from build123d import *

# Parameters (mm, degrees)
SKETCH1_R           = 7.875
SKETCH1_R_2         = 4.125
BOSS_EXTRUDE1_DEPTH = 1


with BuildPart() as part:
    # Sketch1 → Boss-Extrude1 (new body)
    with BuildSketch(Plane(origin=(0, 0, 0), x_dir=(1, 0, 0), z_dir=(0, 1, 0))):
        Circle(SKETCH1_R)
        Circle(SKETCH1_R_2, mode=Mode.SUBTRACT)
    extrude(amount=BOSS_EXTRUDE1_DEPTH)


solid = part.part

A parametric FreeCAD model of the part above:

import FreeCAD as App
import Part
import Sketcher
from FreeCAD import Vector
Q = App.Units.Quantity

doc = App.newDocument("Part")
body = doc.addObject("PartDesign::Body", "Body")

# Sketch on XZ plane
sketch1 = body.newObject("Sketcher::SketchObject", "Sketch")
sketch1.AttachmentSupport = (doc.getObject("XZ_Plane"), [""])
sketch1.MapMode = "FlatFace"
sketch1.addGeometry([
    Part.Circle(Vector(0, 0, 0), Vector(0, 0, 1), 7.9),
    Part.Circle(Vector(0, 0, 0), Vector(0, 0, 1), 4.1),
], False)
sketch1.addConstraint([
    Sketcher.Constraint("Coincident", 0, 3, -1, 1),
    Sketcher.Constraint("Coincident", 1, 3, -1, 1),
    Sketcher.Constraint("Diameter", 0, Q("15.75 mm")),
    Sketcher.Constraint("Diameter", 1, Q("8.25 mm")),
])
pad1 = body.newObject("PartDesign::Pad", "Pad")
pad1.Profile = sketch1
pad1.Length = 1
pad1.Reversed = True

doc.recompute()
